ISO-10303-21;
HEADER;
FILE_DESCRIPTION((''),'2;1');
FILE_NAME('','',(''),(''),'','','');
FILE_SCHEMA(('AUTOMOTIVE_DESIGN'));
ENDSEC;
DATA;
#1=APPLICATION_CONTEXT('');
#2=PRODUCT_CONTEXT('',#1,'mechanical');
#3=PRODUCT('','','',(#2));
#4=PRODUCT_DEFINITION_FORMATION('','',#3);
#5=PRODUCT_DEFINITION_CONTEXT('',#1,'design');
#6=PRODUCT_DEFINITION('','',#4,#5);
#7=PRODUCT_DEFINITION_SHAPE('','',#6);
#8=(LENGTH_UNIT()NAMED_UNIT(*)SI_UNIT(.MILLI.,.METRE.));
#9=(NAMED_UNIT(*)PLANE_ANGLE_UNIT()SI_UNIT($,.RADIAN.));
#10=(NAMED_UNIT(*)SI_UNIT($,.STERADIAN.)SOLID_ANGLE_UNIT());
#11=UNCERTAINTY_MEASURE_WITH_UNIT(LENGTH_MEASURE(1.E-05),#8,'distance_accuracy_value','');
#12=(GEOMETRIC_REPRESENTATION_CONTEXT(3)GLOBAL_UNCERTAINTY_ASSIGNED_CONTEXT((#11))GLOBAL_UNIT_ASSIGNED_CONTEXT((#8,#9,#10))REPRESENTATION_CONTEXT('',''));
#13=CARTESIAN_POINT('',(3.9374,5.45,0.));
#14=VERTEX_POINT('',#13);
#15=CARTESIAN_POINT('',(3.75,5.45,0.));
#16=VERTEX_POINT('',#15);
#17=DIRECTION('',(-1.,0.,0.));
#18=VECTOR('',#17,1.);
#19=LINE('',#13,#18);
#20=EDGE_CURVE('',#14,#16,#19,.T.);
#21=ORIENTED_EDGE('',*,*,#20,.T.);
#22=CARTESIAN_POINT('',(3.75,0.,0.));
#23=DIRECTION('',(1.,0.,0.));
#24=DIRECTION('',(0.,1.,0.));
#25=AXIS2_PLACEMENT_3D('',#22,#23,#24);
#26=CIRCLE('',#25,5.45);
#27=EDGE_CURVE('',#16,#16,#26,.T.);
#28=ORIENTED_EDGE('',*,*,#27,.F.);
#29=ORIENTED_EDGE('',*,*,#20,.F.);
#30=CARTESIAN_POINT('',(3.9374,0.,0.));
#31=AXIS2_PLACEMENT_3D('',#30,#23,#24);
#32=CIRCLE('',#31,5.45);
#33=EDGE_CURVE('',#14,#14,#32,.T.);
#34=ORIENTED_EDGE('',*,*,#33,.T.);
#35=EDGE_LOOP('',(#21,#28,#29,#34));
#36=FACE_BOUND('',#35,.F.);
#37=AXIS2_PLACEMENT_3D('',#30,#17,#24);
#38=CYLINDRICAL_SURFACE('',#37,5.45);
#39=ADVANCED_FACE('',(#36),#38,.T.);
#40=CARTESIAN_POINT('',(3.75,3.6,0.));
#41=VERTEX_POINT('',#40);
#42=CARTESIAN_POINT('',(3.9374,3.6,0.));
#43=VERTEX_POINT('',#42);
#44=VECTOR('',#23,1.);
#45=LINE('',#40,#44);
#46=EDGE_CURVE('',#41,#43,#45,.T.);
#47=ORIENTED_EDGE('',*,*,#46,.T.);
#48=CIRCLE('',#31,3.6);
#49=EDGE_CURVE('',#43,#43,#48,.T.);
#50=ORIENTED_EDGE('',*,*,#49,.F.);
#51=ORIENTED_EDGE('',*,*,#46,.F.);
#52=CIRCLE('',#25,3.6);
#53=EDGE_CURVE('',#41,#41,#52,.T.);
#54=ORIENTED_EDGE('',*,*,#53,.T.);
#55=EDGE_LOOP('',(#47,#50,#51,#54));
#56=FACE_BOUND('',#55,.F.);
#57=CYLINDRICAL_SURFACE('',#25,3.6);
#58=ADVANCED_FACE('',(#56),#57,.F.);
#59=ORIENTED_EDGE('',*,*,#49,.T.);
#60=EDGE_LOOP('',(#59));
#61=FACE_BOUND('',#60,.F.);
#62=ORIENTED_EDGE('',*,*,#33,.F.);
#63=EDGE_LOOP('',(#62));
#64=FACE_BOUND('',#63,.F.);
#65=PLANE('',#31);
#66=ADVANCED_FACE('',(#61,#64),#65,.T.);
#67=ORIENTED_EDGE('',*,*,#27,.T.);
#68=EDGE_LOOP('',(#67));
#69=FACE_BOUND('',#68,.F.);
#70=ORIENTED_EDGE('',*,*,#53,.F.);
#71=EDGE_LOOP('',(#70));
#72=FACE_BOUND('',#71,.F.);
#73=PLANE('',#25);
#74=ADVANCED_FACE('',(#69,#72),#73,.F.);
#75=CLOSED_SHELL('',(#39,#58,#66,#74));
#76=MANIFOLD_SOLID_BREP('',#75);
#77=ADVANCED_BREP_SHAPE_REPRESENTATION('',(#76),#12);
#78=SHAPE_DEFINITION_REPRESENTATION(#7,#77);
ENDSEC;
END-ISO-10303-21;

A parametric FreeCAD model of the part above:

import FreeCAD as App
import Part
import Sketcher
Q = App.Units.Quantity

doc = App.newDocument("Part")
params = doc.addObject("Spreadsheet::Sheet", "Params")
for row, (alias, value) in enumerate([
    ("sketch1_height", "1.85 mm"),
    ("revolution_angle", "360 deg"),
], start=1):
    params.set(f"A{row}", alias)
    params.set(f"B{row}", "=" + value)
    params.setAlias(f"B{row}", alias)

body = doc.addObject("PartDesign::Body", "Body")

# Sketch on XY plane
sketch1 = doc.addObject("Sketcher::SketchObject", "Sketch")
body.addObject(sketch1)
sketch1.AttachmentSupport = (doc.XY_Plane, [""])
sketch1.MapMode = "FlatFace"
sketch1.addGeometry([
    Part.LineSegment(App.Vector(3.75, 5.45, 0), App.Vector(3.75, 3.6, 0)),
    Part.LineSegment(App.Vector(3.75, 3.6, 0), App.Vector(3.9374, 3.6, 0)),
    Part.LineSegment(App.Vector(3.9374, 3.6, 0), App.Vector(3.9374, 5.45, 0)),
    Part.LineSegment(App.Vector(3.9374, 5.45, 0), App.Vector(3.75, 5.45, 0)),
], False)
sketch1.addConstraint([
    Sketcher.Constraint("Coincident", 0, 2, 1, 1),
    Sketcher.Constraint("Coincident", 1, 2, 2, 1),
    Sketcher.Constraint("Coincident", 2, 2, 3, 1),
    Sketcher.Constraint("Coincident", 3, 2, 0, 1),
    Sketcher.Constraint("Vertical", 0),
    Sketcher.Constraint("Horizontal", 1),
    Sketcher.Constraint("Vertical", 2),
    Sketcher.Constraint("Horizontal", 3),
    Sketcher.Constraint("DistanceY", 0, 2, 0, 1, Q("1.85 mm")),
    Sketcher.Constraint("DistanceY", -1, 1, 0, 2, Q("3.6 mm")),
    Sketcher.Constraint("DistanceX", -1, 1, 0, 2, Q("3.75 mm")),
    Sketcher.Constraint("DistanceX", 1, 1, 1, 2, Q("0.1874 mm")),
])
sketch1.setExpression("Constraints[8]", "Params.sketch1_height")
revolution = doc.addObject("PartDesign::Revolution", "Revolution")
body.addObject(revolution)
revolution.Profile = sketch1
revolution.ReferenceAxis = (sketch1, ["H_Axis"])
revolution.setExpression("Angle", "Params.revolution_angle")

doc.recompute()
